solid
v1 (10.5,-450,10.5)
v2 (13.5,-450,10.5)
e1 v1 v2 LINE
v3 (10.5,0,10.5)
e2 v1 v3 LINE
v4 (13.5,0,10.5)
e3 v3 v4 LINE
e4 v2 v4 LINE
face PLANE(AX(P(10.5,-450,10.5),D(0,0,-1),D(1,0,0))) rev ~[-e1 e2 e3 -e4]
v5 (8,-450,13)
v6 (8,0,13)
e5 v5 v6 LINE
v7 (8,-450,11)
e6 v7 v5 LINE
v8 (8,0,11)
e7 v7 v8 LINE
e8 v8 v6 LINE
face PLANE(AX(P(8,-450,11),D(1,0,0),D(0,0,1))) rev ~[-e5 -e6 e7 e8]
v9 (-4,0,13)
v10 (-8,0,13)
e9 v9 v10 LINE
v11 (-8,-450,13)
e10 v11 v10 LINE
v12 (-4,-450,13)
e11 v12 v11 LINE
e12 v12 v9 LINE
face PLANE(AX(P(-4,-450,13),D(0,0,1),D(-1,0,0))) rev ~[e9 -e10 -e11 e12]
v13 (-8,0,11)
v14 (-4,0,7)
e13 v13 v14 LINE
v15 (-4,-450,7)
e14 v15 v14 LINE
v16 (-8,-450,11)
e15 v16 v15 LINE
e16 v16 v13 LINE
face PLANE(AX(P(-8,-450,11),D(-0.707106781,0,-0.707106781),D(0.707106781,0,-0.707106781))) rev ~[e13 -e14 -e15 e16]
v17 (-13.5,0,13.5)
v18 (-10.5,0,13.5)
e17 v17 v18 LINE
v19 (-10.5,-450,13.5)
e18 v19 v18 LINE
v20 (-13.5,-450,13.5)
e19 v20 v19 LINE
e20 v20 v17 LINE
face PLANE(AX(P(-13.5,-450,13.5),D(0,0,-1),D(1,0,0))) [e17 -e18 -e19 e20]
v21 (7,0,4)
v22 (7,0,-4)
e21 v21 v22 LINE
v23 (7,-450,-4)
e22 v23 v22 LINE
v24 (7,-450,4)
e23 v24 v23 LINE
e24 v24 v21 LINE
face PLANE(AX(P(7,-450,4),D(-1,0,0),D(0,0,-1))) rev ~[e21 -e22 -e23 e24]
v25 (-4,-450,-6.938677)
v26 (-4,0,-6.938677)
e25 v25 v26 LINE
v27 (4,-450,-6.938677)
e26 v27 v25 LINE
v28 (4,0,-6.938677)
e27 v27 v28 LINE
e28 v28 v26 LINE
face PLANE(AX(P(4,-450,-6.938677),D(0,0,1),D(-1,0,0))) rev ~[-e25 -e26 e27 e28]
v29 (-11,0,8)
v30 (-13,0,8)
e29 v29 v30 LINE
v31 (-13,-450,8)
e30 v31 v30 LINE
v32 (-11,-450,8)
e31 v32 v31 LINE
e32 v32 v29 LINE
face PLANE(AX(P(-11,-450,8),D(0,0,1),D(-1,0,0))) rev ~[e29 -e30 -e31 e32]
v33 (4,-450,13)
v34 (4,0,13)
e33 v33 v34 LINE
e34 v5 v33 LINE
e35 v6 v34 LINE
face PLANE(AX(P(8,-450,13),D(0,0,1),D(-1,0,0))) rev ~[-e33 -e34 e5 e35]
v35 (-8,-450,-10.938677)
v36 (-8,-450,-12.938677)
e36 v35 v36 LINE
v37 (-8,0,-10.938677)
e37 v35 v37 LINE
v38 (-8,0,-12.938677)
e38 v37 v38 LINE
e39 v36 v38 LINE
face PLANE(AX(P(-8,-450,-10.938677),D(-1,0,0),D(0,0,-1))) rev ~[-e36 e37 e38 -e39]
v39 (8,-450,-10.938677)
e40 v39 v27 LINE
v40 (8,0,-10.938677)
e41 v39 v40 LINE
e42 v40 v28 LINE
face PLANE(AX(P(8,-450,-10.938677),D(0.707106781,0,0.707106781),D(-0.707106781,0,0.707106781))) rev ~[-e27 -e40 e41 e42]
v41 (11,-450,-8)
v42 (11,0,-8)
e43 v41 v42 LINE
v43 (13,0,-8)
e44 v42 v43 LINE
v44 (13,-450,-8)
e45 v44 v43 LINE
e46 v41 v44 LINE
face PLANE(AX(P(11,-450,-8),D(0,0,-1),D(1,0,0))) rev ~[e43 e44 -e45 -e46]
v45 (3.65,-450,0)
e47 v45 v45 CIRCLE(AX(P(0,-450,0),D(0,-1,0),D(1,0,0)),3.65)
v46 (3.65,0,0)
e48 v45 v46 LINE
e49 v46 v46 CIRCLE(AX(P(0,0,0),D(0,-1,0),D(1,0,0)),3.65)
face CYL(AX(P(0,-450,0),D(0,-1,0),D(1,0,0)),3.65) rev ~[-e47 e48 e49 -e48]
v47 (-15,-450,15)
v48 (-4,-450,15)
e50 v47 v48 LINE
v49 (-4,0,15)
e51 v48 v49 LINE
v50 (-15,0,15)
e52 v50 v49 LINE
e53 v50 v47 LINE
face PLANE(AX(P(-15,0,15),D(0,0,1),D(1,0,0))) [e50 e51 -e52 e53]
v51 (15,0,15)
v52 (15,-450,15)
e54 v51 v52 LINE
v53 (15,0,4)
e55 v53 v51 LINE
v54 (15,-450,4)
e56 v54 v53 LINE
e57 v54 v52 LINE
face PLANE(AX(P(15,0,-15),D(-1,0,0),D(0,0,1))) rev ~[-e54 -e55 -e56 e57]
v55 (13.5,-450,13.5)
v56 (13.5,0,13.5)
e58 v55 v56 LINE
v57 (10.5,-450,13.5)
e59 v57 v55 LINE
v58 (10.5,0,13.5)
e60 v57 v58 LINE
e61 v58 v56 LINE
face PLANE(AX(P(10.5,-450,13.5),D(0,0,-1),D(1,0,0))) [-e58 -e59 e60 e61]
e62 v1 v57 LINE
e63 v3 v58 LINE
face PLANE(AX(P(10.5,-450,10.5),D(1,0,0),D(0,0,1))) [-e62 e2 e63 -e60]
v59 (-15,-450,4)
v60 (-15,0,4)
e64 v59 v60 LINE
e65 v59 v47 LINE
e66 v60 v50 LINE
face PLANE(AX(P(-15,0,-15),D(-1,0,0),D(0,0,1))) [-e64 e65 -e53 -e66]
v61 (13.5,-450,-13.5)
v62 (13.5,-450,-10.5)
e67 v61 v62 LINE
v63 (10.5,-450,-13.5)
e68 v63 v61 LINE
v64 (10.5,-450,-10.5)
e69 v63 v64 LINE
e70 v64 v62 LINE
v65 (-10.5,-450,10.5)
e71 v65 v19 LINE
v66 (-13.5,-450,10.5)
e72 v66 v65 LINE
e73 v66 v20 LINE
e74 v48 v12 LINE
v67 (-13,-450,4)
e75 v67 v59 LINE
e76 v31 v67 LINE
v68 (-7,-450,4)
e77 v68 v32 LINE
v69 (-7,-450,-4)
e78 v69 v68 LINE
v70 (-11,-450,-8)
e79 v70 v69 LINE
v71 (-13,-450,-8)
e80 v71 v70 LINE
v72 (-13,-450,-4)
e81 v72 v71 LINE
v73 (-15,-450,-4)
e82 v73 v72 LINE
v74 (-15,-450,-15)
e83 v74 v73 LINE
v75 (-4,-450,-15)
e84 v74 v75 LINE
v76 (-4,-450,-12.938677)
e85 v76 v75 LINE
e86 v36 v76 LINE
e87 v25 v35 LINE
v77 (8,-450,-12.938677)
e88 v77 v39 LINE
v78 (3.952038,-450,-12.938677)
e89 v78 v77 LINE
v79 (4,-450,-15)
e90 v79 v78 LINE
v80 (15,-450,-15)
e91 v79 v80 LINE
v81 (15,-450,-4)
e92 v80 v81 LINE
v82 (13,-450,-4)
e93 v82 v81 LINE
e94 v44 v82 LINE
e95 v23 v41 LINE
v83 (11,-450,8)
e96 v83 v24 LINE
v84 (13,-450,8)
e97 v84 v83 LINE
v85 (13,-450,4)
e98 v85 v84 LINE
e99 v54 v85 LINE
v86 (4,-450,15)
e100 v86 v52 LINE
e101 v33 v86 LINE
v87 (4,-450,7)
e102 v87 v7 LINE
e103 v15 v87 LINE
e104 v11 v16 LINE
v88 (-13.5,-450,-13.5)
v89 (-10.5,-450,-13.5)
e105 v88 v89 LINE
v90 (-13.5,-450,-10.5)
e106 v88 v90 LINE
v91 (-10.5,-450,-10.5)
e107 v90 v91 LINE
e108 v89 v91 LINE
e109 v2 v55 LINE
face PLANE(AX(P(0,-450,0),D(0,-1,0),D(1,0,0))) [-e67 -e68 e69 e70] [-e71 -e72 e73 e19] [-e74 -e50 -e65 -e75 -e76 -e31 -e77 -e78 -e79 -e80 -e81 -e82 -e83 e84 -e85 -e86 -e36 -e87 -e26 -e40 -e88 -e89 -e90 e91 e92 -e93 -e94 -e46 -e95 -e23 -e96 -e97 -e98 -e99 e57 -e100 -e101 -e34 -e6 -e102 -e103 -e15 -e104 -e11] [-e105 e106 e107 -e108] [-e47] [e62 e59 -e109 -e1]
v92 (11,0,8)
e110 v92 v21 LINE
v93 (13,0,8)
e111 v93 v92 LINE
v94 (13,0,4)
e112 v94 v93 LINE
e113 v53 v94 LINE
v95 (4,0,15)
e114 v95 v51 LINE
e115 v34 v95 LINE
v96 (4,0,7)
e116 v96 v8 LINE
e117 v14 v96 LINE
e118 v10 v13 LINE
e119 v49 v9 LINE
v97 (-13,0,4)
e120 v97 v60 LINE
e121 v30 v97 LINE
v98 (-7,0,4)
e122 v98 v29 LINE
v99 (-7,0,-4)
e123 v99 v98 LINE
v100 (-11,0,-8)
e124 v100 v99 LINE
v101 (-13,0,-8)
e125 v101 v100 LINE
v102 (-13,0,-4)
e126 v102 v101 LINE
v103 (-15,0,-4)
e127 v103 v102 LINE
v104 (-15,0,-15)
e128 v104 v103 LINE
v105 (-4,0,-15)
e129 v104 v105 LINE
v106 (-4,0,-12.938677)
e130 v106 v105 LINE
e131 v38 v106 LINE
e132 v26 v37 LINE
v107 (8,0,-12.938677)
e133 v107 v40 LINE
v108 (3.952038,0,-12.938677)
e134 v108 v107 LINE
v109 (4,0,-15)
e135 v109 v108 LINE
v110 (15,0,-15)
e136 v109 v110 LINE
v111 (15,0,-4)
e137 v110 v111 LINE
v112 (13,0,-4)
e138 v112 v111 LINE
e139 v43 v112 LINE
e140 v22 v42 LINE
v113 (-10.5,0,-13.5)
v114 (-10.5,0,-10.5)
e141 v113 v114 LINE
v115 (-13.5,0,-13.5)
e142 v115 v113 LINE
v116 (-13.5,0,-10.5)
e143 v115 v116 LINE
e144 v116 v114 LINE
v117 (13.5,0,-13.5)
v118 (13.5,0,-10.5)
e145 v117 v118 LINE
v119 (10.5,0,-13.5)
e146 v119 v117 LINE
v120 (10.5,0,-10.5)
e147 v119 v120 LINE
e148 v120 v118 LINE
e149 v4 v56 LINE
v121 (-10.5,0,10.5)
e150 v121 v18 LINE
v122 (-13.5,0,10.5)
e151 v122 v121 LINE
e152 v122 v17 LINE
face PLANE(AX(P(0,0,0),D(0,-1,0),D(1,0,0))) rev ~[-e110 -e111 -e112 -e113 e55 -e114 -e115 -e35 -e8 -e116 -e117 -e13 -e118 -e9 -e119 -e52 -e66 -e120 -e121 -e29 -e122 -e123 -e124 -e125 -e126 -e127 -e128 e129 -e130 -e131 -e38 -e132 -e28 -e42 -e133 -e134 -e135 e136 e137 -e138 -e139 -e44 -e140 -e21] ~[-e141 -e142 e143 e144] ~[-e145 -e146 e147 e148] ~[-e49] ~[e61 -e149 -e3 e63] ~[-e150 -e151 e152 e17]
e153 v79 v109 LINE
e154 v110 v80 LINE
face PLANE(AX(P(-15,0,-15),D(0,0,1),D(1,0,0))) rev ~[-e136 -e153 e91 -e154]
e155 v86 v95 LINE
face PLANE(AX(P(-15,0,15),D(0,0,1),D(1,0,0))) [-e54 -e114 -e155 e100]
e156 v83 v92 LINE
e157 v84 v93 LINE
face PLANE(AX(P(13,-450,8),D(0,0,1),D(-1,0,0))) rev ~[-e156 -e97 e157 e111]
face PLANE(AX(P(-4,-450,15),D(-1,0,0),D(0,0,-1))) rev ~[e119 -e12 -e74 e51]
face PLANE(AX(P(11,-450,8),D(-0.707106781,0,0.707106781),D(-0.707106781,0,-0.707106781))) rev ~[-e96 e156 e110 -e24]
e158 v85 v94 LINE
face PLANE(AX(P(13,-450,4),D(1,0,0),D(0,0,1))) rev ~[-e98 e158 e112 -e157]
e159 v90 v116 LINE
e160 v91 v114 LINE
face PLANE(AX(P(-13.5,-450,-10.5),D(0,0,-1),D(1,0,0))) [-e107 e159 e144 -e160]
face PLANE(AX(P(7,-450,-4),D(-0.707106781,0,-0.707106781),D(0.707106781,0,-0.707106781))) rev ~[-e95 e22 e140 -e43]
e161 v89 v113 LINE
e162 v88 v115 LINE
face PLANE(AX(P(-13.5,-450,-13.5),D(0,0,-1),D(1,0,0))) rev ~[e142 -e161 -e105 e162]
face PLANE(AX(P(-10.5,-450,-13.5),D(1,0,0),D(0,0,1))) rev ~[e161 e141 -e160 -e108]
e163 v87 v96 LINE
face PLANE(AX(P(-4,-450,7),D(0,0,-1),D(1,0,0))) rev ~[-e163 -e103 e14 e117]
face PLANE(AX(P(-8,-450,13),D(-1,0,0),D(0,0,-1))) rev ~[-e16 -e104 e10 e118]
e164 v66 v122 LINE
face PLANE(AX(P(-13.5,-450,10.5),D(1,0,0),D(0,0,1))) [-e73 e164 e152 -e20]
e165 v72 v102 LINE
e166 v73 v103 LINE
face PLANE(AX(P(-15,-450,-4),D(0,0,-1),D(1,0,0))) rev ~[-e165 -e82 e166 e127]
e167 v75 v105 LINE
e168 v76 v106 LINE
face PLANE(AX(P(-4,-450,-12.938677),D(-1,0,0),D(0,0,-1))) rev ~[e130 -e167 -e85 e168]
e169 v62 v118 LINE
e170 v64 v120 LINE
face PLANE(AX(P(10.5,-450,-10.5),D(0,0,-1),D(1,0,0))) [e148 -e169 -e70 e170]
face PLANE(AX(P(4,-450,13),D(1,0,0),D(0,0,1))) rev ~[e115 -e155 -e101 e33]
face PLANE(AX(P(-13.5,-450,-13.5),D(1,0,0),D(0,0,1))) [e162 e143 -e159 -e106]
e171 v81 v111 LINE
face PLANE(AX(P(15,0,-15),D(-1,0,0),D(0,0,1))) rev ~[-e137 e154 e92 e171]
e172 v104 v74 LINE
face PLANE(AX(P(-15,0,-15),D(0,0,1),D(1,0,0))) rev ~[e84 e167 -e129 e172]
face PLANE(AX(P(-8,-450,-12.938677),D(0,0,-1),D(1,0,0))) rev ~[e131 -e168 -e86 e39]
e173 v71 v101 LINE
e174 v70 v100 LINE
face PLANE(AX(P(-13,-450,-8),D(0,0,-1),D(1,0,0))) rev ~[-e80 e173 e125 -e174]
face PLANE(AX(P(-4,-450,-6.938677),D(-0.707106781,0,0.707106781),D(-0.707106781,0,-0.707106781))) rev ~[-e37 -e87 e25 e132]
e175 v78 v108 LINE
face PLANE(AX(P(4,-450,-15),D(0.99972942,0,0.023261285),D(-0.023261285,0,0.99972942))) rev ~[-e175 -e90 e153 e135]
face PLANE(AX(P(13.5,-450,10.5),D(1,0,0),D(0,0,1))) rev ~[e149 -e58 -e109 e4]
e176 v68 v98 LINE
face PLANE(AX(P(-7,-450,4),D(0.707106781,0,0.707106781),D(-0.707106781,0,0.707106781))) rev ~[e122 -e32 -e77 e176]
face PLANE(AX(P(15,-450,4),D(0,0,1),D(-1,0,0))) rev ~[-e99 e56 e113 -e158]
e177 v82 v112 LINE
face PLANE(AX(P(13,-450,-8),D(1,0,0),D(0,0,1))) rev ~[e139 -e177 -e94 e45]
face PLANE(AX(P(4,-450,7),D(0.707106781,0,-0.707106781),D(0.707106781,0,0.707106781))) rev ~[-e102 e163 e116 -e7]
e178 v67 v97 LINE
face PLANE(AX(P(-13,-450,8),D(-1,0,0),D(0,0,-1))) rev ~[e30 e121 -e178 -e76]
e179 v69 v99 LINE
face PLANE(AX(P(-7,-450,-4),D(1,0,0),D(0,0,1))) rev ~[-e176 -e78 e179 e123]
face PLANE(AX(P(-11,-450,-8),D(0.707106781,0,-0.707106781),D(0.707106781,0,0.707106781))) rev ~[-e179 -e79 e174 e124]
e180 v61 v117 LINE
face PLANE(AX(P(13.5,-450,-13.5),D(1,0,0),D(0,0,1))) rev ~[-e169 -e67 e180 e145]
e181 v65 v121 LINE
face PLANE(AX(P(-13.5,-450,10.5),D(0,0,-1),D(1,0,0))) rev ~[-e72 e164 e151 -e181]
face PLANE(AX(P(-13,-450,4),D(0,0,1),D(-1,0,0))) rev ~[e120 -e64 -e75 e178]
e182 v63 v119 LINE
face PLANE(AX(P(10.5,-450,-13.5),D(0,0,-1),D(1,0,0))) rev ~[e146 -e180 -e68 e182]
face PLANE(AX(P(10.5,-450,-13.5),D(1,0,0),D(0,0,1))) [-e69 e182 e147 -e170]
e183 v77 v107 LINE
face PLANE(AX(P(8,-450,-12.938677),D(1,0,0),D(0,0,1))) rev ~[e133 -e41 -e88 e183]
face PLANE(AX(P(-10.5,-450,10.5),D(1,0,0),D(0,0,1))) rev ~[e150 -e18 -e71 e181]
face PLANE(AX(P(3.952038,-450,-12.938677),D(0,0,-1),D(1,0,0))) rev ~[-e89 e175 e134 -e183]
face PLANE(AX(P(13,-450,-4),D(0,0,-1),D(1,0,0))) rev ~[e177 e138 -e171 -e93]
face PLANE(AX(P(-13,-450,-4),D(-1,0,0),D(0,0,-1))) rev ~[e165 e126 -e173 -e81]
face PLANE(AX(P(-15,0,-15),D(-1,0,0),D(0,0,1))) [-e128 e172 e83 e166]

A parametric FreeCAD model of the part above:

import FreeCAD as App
import Part
import Sketcher

V = App.Vector


def add_polygon(sketch, points):
    """Adds a closed chain of lines whose ends are joined by coincident constraints."""
    first, n = sketch.GeometryCount, len(points)
    for a, b in zip(points, points[1:] + points[:1]):
        sketch.addGeometry(Part.LineSegment(App.Vector(*a, 0), App.Vector(*b, 0)), False)
    for i in range(n):
        sketch.addConstraint(Sketcher.Constraint("Coincident", first + i, 2, first + (i + 1) % n, 1))

doc = App.newDocument("Part")
body = doc.addObject("PartDesign::Body", "Body")

# Sketch on XZ plane
sketch1 = doc.addObject("Sketcher::SketchObject", "Sketch")
body.addObject(sketch1)
sketch1.AttachmentSupport = (doc.XZ_Plane, [""])
sketch1.MapMode = "FlatFace"
add_polygon(sketch1, [(-15, 15), (-15, -15), (15, -15), (15, 15)])  # lines 0-3
sketch1.addConstraint([
    Sketcher.Constraint("Vertical", 0),
    Sketcher.Constraint("Horizontal", 1),
    Sketcher.Constraint("Vertical", 2),
    Sketcher.Constraint("Horizontal", 3),
    Sketcher.Constraint("Symmetric", 0, 2, 2, 2, -1, 1),
    Sketcher.Constraint("Equal", 3, 0),
    Sketcher.Constraint("DistanceX", 1, 1, 1, 2, 30.0),
])
pad1 = doc.addObject("PartDesign::Pad", "Pad")
body.addObject(pad1)
pad1.Profile = sketch1
pad1.Length = 450

# Sketch on XZ plane
sketch2 = doc.addObject("Sketcher::SketchObject", "Sketch001")
body.addObject(sketch2)
sketch2.AttachmentSupport = (doc.XZ_Plane, [""])
sketch2.MapMode = "FlatFace"
sketch2.AttachmentOffset = App.Placement(V(0, 0, 450), App.Rotation())
add_polygon(sketch2, [(-13, 4), (-15, 4), (-15, -4), (-13, -4), (-13, -8), (-11, -8), (-7, -4), (-7, 4), (-11, 8), (-13, 8)])  # lines 0-9
add_polygon(sketch2, [(4, 15), (-4, 15), (-4, 13), (-8, 13), (-8, 11), (-4, 7), (4, 7), (8, 11), (8, 13), (4, 13)])  # lines 10-19
add_polygon(sketch2, [(13, -4), (15, -4), (15, 4), (13, 4), (13, 8), (11, 8), (7, 4), (7, -4), (11, -8), (13, -8)])  # lines 20-29
sketch2.addGeometry(Part.Circle(V(0, 0, 0), V(0, 0, 1), 3.6), False)  # 30
add_polygon(sketch2, [(-4, -12.9), (-4, -15), (4, -15), (4, -12.9), (8, -12.9), (8, -10.9), (4, -6.9), (-4, -6.9), (-8, -10.9), (-8, -12.9)])  # lines 31-40
add_polygon(sketch2, [(10.5, 13.5), (10.5, 10.5), (13.5, 10.5), (13.5, 13.5)])  # lines 41-44
add_polygon(sketch2, [(-13.5, 13.5), (-13.5, 10.5), (-10.5, 10.5), (-10.5, 13.5)])  # lines 45-48
add_polygon(sketch2, [(10.5, -10.5), (10.5, -13.5), (13.5, -13.5), (13.5, -10.5)])  # lines 49-52
add_polygon(sketch2, [(-13.5, -10.5), (-13.5, -13.5), (-10.5, -13.5), (-10.5, -10.5)])  # lines 53-56
sketch2.addConstraint([
    Sketcher.Constraint("Horizontal", 0),
    Sketcher.Constraint("Vertical", 1),
    Sketcher.Constraint("Horizontal", 2),
    Sketcher.Constraint("Vertical", 3),
    Sketcher.Constraint("Horizontal", 4),
    Sketcher.Constraint("Vertical", 6),
    Sketcher.Constraint("Horizontal", 8),
    Sketcher.Constraint("Vertical", 9),
    Sketcher.Constraint("Horizontal", 10),
    Sketcher.Constraint("Vertical", 11),
    Sketcher.Constraint("Horizontal", 12),
    Sketcher.Constraint("Vertical", 13),
    Sketcher.Constraint("Horizontal", 15),
    Sketcher.Constraint("Vertical", 17),
    Sketcher.Constraint("Horizontal", 18),
    Sketcher.Constraint("Vertical", 19),
    Sketcher.Constraint("Horizontal", 20),
    Sketcher.Constraint("Vertical", 21),
    Sketcher.Constraint("Horizontal", 22),
    Sketcher.Constraint("Vertical", 23),
    Sketcher.Constraint("Horizontal", 24),
    Sketcher.Constraint("Vertical", 26),
    Sketcher.Constraint("Horizontal", 28),
    Sketcher.Constraint("Vertical", 29),
    Sketcher.Constraint("Vertical", 31),
    Sketcher.Constraint("Horizontal", 32),
    Sketcher.Constraint("Horizontal", 34),
    Sketcher.Constraint("Vertical", 35),
    Sketcher.Constraint("Horizontal", 37),
    Sketcher.Constraint("Vertical", 39),
    Sketcher.Constraint("Horizontal", 40),
    Sketcher.Constraint("Vertical", 41),
    Sketcher.Constraint("Horizontal", 42),
    Sketcher.Constraint("Vertical", 43),
    Sketcher.Constraint("Horizontal", 44),
    Sketcher.Constraint("Vertical", 45),
    Sketcher.Constraint("Horizontal", 46),
    Sketcher.Constraint("Vertical", 47),
    Sketcher.Constraint("Horizontal", 48),
    Sketcher.Constraint("Vertical", 49),
    Sketcher.Constraint("Horizontal", 50),
    Sketcher.Constraint("Vertical", 51),
    Sketcher.Constraint("Horizontal", 52),
    Sketcher.Constraint("Vertical", 53),
    Sketcher.Constraint("Horizontal", 54),
    Sketcher.Constraint("Vertical", 55),
    Sketcher.Constraint("Horizontal", 56),
    Sketcher.Constraint("Coincident", 30, 3, -1, 1),
    Sketcher.Constraint("Symmetric", 0, 2, 20, 2, -1, 1),
    Sketcher.Constraint("Symmetric", 2, 2, 22, 2, -1, 1),
    Sketcher.Constraint("Symmetric", 4, 2, 24, 2, -1, 1),
    Sketcher.Constraint("Symmetric", 5, 2, 25, 2, -1, 1),
    Sketcher.Constraint("Symmetric", 7, 2, 27, 2, -1, 1),
    Sketcher.Constraint("Symmetric", 19, 2, 31, 2, -1, 1),
    Sketcher.Constraint("Symmetric", 47, 2, 49, 2, -1, 1),
    Sketcher.Constraint("Symmetric", 45, 2, 51, 2, -1, 1),
    Sketcher.Constraint("Symmetric", 43, 2, 53, 2, -1, 1),
    Sketcher.Constraint("Symmetric", 41, 2, 55, 2, -1, 1),
    Sketcher.Constraint("Symmetric", 13, 2, 16, 2, -2),
    Sketcher.Constraint("Symmetric", 11, 2, 18, 2, -2),
    Sketcher.Constraint("Symmetric", 9, 2, 22, 2, -2),
    Sketcher.Constraint("Symmetric", 7, 2, 24, 2, -2),
    Sketcher.Constraint("Symmetric", 35, 2, 38, 2, -2),
    Sketcher.Constraint("Symmetric", 42, 2, 45, 2, -2),
    Sketcher.Constraint("Symmetric", 44, 2, 47, 2, -2),
    Sketcher.Constraint("Perpendicular", 5, 7),
    Sketcher.Constraint("Parallel", 7, 14),
    Sketcher.Constraint("Perpendicular", 14, 16),
    Sketcher.Constraint("Perpendicular", 25, 27),
    Sketcher.Constraint("Parallel", 27, 36),
    Sketcher.Constraint("Perpendicular", 36, 38),
    Sketcher.Constraint("Horizontal", 2, 2, 5, 2),
    Sketcher.Constraint("Horizontal", 0, 2, 6, 2),
    Sketcher.Constraint("Horizontal", 34, 2, 39, 2),
    Sketcher.Constraint("Vertical", 11, 2, 14, 2),
    Sketcher.Constraint("Vertical", 23, 2, 28, 2),
    Sketcher.Constraint("Vertical", 19, 2, 32, 2),
    Sketcher.Constraint("Vertical", 17, 2, 34, 2),
    Sketcher.Constraint("Vertical", 32, 2, 36, 2),
    Sketcher.Constraint("Equal", 2, 4),
    Sketcher.Constraint("Equal", 37, 1),
    Sketcher.Constraint("Equal", 40, 3),
    Sketcher.Constraint("Equal", 28, 11),
    Sketcher.Constraint("Equal", 11, 13),
    Sketcher.Constraint("Equal", 19, 35),
    Sketcher.Constraint("Equal", 56, 41),
    Sketcher.Constraint("Diameter", 30, 7.3),
    Sketcher.Constraint("DistanceX", 0, 2, 0, 1, 2.0),
    Sketcher.Constraint("DistanceX", 10, 2, 10, 1, 8.0),
    Sketcher.Constraint("DistanceX", 12, 2, 12, 1, 4.0),
    Sketcher.Constraint("DistanceX", 42, 1, 42, 2, 3.0),
    Sketcher.Constraint("DistanceX", 0, 2, -1, 1, 15.0),
    Sketcher.Constraint("DistanceY", -1, 1, 10, 2, 15.0),
    Sketcher.Constraint("DistanceX", -1, 1, 41, 2, 10.5),
    Sketcher.Constraint("DistanceY", -1, 1, 41, 2, 10.5),
    Sketcher.Constraint("Distance", 33, 2.061881),
    Sketcher.Constraint("DistanceX", 34, 1, 34, 2, 4.047962),
])
pocket1 = doc.addObject("PartDesign::Pocket", "Pocket")
body.addObject(pocket1)
pocket1.Profile = sketch2
pocket1.Type = "ThroughAll"

doc.recompute()
